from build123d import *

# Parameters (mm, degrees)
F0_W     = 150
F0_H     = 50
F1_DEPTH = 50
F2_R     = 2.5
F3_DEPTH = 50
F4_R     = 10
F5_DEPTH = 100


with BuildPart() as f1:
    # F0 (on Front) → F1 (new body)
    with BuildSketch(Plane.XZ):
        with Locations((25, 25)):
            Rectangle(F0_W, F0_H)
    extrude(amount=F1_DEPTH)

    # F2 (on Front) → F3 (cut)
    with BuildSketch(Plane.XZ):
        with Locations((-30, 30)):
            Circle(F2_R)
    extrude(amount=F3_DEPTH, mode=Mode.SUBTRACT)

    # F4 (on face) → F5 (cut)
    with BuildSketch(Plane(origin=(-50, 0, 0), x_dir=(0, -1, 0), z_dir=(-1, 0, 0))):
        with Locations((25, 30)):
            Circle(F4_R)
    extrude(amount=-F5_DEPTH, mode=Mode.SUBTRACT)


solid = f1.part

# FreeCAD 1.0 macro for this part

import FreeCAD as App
import Part
import Sketcher
from FreeCAD import Vector


def add_polygon(sketch, points):
    """Adds a closed chain of lines whose ends are joined by coincident constraints."""
    first, n = sketch.GeometryCount, len(points)
    for a, b in zip(points, points[1:] + points[:1]):
        sketch.addGeometry(Part.LineSegment(App.Vector(*a, 0), App.Vector(*b, 0)), False)
    for i in range(n):
        sketch.addConstraint(Sketcher.Constraint("Coincident", first + i, 2, first + (i + 1) % n, 1))

doc = App.newDocument("Part")
body = doc.addObject("PartDesign::Body", "Body")

# Sketch on XZ plane
sketch1 = doc.addObject("Sketcher::SketchObject", "Sketch")
body.addObject(sketch1)
sketch1.AttachmentSupport = (doc.XZ_Plane, [""])
sketch1.MapMode = "FlatFace"
add_polygon(sketch1, [(-50, 50), (-50, 0), (100, 0), (100, 50)])  # lines 0-3
sketch1.addConstraint([
    Sketcher.Constraint("Vertical", 0),
    Sketcher.Constraint("Horizontal", 1),
    Sketcher.Constraint("Vertical", 2),
    Sketcher.Constraint("Horizontal", 3),
    Sketcher.Constraint("PointOnObject", 0, 2, -1),
    Sketcher.Constraint("DistanceX", 1, 1, 1, 2, 150.0),
    Sketcher.Constraint("DistanceY", 0, 2, 0, 1, 50.0),
    Sketcher.Constraint("DistanceX", 0, 2, -1, 1, 50.0),
])
pad1 = doc.addObject("PartDesign::Pad", "Pad")
body.addObject(pad1)
pad1.Profile = sketch1
pad1.Length = 50

# Sketch on XZ plane
sketch2 = doc.addObject("Sketcher::SketchObject", "Sketch001")
body.addObject(sketch2)
sketch2.AttachmentSupport = (doc.XZ_Plane, [""])
sketch2.MapMode = "FlatFace"
sketch2.addGeometry(Part.Circle(Vector(-30, 30, 0), Vector(0, 0, 1), 2.5), False)
sketch2.addConstraint([
    Sketcher.Constraint("Diameter", 0, 5.0),
    Sketcher.Constraint("DistanceX", 0, 3, -1, 1, 30.0),
    Sketcher.Constraint("DistanceY", -1, 1, 0, 3, 30.0),
])
pocket1 = doc.addObject("PartDesign::Pocket", "Pocket")
body.addObject(pocket1)
pocket1.Profile = sketch2
pocket1.Length = 50
pocket1.Reversed = True

# Sketch on YZ plane
sketch3 = doc.addObject("Sketcher::SketchObject", "Sketch002")
body.addObject(sketch3)
sketch3.AttachmentSupport = (doc.YZ_Plane, [""])
sketch3.MapMode = "FlatFace"
sketch3.AttachmentOffset = App.Placement(Vector(0, 0, -50), App.Rotation())
sketch3.addGeometry(Part.Circle(Vector(-25, 30, 0), Vector(0, 0, 1), 10), False)
sketch3.addConstraint([
    Sketcher.Constraint("Diameter", 0, 20.0),
    Sketcher.Constraint("DistanceX", 0, 3, -1, 1, 25.0),
    Sketcher.Constraint("DistanceY", -1, 1, 0, 3, 30.0),
])
pocket2 = doc.addObject("PartDesign::Pocket", "Pocket001")
body.addObject(pocket2)
pocket2.Profile = sketch3
pocket2.Length = 100
pocket2.Reversed = True

doc.recompute()
